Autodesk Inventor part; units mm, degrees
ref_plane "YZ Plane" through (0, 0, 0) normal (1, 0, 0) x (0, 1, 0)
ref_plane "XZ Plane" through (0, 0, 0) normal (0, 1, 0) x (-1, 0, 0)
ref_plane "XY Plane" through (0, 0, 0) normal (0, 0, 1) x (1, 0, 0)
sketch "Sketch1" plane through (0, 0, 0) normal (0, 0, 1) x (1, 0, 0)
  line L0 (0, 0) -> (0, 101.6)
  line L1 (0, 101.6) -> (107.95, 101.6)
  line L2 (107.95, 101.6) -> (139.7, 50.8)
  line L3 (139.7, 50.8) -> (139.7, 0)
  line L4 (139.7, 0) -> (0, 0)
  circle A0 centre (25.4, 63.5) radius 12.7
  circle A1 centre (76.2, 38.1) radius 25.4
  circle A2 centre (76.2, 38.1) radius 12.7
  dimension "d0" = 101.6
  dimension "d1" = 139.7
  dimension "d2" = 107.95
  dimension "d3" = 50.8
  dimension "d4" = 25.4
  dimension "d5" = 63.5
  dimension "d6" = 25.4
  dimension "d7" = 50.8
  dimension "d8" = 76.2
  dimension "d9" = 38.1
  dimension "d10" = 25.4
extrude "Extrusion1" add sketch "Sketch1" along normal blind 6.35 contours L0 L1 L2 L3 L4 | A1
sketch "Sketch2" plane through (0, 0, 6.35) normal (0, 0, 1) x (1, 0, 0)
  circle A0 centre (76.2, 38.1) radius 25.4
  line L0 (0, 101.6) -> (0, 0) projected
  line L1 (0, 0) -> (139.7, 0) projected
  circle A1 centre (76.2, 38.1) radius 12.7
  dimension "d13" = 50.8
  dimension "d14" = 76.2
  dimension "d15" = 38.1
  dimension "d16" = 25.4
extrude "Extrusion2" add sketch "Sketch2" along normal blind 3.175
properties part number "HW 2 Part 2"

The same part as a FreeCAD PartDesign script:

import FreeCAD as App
import Part
import Sketcher
from FreeCAD import Vector
Q = App.Units.Quantity


def add_polygon(sketch, points):
    """Adds a closed chain of lines whose ends are joined by coincident constraints."""
    first, n = sketch.GeometryCount, len(points)
    for a, b in zip(points, points[1:] + points[:1]):
        sketch.addGeometry(Part.LineSegment(App.Vector(*a, 0), App.Vector(*b, 0)), False)
    for i in range(n):
        sketch.addConstraint(Sketcher.Constraint("Coincident", first + i, 2, first + (i + 1) % n, 1))

doc = App.newDocument("Part")
body = doc.addObject("PartDesign::Body", "Body")

sketch1 = doc.addObject("Sketcher::SketchObject", "Sketch")
body.addObject(sketch1)
sketch1.AttachmentSupport = (doc.XY_Plane, [""])
sketch1.MapMode = "FlatFace"
add_polygon(sketch1, [(0, 102), (0, 0), (140, 0), (140, 51), (108, 102)])
sketch1.addGeometry(Part.Circle(Vector(25, 64, 0), Vector(0, 0, 1), 13), False)
sketch1.addGeometry(Part.Circle(Vector(76, 38, 0), Vector(0, 0, 1), 13), False)
sketch1.addConstraint(Sketcher.Constraint("Vertical", 0))
sketch1.addConstraint(Sketcher.Constraint("Horizontal", 1))
sketch1.addConstraint(Sketcher.Constraint("Vertical", 2))
sketch1.addConstraint(Sketcher.Constraint("Horizontal", 4))
sketch1.addConstraint(Sketcher.Constraint("Coincident", 0, 2, -1, 1))
sketch1.addConstraint(Sketcher.Constraint("Equal", 5, 6))
sketch1.addConstraint(Sketcher.Constraint("Diameter", 5, Q("1 in")))
sketch1.addConstraint(Sketcher.Constraint("DistanceY", 0, 2, 0, 1, Q("4 in")))
sketch1.addConstraint(Sketcher.Constraint("DistanceY", 2, 1, 2, 2, Q("2 in")))
sketch1.addConstraint(Sketcher.Constraint("DistanceX", 1, 1, 1, 2, Q("5.5 in")))
sketch1.addConstraint(Sketcher.Constraint("DistanceX", -1, 1, 5, 3, Q("1 in")))
sketch1.addConstraint(Sketcher.Constraint("DistanceX", -1, 1, 6, 3, Q("3 in")))
sketch1.addConstraint(Sketcher.Constraint("DistanceY", 6, 3, 5, 3, Q("1 in")))
sketch1.addConstraint(Sketcher.Constraint("DistanceX", 4, 2, 4, 1, Q("4.25 in")))
sketch1.addConstraint(Sketcher.Constraint("DistanceY", -1, 1, 5, 3, Q("2.5 in")))
pad1 = doc.addObject("PartDesign::Pad", "Pad")
body.addObject(pad1)
pad1.Profile = sketch1
pad1.Length = Q("0.25 in")

sketch2 = doc.addObject("Sketcher::SketchObject", "Sketch001")
body.addObject(sketch2)
sketch2.AttachmentSupport = (doc.XY_Plane, [""])
sketch2.MapMode = "FlatFace"
sketch2.AttachmentOffset = App.Placement(Vector(0, 0, 0.25 * 25.4), App.Rotation())
sketch2.addGeometry(Part.Circle(Vector(76, 38, 0), Vector(0, 0, 1), 25), False)
sketch2.addGeometry(Part.Circle(Vector(76, 38, 0), Vector(0, 0, 1), 13), False)
sketch2.addConstraint(Sketcher.Constraint("Coincident", 1, 3, 0, 3))
sketch2.addConstraint(Sketcher.Constraint("Diameter", 0, Q("2 in")))
sketch2.addConstraint(Sketcher.Constraint("Diameter", 1, Q("1 in")))
sketch2.addConstraint(Sketcher.Constraint("DistanceX", -1, 1, 0, 3, Q("3 in")))
sketch2.addConstraint(Sketcher.Constraint("DistanceY", -1, 1, 0, 3, Q("1.5 in")))
pad2 = doc.addObject("PartDesign::Pad", "Pad001")
body.addObject(pad2)
pad2.Profile = sketch2
pad2.Length = Q("0.125 in")

doc.recompute()
